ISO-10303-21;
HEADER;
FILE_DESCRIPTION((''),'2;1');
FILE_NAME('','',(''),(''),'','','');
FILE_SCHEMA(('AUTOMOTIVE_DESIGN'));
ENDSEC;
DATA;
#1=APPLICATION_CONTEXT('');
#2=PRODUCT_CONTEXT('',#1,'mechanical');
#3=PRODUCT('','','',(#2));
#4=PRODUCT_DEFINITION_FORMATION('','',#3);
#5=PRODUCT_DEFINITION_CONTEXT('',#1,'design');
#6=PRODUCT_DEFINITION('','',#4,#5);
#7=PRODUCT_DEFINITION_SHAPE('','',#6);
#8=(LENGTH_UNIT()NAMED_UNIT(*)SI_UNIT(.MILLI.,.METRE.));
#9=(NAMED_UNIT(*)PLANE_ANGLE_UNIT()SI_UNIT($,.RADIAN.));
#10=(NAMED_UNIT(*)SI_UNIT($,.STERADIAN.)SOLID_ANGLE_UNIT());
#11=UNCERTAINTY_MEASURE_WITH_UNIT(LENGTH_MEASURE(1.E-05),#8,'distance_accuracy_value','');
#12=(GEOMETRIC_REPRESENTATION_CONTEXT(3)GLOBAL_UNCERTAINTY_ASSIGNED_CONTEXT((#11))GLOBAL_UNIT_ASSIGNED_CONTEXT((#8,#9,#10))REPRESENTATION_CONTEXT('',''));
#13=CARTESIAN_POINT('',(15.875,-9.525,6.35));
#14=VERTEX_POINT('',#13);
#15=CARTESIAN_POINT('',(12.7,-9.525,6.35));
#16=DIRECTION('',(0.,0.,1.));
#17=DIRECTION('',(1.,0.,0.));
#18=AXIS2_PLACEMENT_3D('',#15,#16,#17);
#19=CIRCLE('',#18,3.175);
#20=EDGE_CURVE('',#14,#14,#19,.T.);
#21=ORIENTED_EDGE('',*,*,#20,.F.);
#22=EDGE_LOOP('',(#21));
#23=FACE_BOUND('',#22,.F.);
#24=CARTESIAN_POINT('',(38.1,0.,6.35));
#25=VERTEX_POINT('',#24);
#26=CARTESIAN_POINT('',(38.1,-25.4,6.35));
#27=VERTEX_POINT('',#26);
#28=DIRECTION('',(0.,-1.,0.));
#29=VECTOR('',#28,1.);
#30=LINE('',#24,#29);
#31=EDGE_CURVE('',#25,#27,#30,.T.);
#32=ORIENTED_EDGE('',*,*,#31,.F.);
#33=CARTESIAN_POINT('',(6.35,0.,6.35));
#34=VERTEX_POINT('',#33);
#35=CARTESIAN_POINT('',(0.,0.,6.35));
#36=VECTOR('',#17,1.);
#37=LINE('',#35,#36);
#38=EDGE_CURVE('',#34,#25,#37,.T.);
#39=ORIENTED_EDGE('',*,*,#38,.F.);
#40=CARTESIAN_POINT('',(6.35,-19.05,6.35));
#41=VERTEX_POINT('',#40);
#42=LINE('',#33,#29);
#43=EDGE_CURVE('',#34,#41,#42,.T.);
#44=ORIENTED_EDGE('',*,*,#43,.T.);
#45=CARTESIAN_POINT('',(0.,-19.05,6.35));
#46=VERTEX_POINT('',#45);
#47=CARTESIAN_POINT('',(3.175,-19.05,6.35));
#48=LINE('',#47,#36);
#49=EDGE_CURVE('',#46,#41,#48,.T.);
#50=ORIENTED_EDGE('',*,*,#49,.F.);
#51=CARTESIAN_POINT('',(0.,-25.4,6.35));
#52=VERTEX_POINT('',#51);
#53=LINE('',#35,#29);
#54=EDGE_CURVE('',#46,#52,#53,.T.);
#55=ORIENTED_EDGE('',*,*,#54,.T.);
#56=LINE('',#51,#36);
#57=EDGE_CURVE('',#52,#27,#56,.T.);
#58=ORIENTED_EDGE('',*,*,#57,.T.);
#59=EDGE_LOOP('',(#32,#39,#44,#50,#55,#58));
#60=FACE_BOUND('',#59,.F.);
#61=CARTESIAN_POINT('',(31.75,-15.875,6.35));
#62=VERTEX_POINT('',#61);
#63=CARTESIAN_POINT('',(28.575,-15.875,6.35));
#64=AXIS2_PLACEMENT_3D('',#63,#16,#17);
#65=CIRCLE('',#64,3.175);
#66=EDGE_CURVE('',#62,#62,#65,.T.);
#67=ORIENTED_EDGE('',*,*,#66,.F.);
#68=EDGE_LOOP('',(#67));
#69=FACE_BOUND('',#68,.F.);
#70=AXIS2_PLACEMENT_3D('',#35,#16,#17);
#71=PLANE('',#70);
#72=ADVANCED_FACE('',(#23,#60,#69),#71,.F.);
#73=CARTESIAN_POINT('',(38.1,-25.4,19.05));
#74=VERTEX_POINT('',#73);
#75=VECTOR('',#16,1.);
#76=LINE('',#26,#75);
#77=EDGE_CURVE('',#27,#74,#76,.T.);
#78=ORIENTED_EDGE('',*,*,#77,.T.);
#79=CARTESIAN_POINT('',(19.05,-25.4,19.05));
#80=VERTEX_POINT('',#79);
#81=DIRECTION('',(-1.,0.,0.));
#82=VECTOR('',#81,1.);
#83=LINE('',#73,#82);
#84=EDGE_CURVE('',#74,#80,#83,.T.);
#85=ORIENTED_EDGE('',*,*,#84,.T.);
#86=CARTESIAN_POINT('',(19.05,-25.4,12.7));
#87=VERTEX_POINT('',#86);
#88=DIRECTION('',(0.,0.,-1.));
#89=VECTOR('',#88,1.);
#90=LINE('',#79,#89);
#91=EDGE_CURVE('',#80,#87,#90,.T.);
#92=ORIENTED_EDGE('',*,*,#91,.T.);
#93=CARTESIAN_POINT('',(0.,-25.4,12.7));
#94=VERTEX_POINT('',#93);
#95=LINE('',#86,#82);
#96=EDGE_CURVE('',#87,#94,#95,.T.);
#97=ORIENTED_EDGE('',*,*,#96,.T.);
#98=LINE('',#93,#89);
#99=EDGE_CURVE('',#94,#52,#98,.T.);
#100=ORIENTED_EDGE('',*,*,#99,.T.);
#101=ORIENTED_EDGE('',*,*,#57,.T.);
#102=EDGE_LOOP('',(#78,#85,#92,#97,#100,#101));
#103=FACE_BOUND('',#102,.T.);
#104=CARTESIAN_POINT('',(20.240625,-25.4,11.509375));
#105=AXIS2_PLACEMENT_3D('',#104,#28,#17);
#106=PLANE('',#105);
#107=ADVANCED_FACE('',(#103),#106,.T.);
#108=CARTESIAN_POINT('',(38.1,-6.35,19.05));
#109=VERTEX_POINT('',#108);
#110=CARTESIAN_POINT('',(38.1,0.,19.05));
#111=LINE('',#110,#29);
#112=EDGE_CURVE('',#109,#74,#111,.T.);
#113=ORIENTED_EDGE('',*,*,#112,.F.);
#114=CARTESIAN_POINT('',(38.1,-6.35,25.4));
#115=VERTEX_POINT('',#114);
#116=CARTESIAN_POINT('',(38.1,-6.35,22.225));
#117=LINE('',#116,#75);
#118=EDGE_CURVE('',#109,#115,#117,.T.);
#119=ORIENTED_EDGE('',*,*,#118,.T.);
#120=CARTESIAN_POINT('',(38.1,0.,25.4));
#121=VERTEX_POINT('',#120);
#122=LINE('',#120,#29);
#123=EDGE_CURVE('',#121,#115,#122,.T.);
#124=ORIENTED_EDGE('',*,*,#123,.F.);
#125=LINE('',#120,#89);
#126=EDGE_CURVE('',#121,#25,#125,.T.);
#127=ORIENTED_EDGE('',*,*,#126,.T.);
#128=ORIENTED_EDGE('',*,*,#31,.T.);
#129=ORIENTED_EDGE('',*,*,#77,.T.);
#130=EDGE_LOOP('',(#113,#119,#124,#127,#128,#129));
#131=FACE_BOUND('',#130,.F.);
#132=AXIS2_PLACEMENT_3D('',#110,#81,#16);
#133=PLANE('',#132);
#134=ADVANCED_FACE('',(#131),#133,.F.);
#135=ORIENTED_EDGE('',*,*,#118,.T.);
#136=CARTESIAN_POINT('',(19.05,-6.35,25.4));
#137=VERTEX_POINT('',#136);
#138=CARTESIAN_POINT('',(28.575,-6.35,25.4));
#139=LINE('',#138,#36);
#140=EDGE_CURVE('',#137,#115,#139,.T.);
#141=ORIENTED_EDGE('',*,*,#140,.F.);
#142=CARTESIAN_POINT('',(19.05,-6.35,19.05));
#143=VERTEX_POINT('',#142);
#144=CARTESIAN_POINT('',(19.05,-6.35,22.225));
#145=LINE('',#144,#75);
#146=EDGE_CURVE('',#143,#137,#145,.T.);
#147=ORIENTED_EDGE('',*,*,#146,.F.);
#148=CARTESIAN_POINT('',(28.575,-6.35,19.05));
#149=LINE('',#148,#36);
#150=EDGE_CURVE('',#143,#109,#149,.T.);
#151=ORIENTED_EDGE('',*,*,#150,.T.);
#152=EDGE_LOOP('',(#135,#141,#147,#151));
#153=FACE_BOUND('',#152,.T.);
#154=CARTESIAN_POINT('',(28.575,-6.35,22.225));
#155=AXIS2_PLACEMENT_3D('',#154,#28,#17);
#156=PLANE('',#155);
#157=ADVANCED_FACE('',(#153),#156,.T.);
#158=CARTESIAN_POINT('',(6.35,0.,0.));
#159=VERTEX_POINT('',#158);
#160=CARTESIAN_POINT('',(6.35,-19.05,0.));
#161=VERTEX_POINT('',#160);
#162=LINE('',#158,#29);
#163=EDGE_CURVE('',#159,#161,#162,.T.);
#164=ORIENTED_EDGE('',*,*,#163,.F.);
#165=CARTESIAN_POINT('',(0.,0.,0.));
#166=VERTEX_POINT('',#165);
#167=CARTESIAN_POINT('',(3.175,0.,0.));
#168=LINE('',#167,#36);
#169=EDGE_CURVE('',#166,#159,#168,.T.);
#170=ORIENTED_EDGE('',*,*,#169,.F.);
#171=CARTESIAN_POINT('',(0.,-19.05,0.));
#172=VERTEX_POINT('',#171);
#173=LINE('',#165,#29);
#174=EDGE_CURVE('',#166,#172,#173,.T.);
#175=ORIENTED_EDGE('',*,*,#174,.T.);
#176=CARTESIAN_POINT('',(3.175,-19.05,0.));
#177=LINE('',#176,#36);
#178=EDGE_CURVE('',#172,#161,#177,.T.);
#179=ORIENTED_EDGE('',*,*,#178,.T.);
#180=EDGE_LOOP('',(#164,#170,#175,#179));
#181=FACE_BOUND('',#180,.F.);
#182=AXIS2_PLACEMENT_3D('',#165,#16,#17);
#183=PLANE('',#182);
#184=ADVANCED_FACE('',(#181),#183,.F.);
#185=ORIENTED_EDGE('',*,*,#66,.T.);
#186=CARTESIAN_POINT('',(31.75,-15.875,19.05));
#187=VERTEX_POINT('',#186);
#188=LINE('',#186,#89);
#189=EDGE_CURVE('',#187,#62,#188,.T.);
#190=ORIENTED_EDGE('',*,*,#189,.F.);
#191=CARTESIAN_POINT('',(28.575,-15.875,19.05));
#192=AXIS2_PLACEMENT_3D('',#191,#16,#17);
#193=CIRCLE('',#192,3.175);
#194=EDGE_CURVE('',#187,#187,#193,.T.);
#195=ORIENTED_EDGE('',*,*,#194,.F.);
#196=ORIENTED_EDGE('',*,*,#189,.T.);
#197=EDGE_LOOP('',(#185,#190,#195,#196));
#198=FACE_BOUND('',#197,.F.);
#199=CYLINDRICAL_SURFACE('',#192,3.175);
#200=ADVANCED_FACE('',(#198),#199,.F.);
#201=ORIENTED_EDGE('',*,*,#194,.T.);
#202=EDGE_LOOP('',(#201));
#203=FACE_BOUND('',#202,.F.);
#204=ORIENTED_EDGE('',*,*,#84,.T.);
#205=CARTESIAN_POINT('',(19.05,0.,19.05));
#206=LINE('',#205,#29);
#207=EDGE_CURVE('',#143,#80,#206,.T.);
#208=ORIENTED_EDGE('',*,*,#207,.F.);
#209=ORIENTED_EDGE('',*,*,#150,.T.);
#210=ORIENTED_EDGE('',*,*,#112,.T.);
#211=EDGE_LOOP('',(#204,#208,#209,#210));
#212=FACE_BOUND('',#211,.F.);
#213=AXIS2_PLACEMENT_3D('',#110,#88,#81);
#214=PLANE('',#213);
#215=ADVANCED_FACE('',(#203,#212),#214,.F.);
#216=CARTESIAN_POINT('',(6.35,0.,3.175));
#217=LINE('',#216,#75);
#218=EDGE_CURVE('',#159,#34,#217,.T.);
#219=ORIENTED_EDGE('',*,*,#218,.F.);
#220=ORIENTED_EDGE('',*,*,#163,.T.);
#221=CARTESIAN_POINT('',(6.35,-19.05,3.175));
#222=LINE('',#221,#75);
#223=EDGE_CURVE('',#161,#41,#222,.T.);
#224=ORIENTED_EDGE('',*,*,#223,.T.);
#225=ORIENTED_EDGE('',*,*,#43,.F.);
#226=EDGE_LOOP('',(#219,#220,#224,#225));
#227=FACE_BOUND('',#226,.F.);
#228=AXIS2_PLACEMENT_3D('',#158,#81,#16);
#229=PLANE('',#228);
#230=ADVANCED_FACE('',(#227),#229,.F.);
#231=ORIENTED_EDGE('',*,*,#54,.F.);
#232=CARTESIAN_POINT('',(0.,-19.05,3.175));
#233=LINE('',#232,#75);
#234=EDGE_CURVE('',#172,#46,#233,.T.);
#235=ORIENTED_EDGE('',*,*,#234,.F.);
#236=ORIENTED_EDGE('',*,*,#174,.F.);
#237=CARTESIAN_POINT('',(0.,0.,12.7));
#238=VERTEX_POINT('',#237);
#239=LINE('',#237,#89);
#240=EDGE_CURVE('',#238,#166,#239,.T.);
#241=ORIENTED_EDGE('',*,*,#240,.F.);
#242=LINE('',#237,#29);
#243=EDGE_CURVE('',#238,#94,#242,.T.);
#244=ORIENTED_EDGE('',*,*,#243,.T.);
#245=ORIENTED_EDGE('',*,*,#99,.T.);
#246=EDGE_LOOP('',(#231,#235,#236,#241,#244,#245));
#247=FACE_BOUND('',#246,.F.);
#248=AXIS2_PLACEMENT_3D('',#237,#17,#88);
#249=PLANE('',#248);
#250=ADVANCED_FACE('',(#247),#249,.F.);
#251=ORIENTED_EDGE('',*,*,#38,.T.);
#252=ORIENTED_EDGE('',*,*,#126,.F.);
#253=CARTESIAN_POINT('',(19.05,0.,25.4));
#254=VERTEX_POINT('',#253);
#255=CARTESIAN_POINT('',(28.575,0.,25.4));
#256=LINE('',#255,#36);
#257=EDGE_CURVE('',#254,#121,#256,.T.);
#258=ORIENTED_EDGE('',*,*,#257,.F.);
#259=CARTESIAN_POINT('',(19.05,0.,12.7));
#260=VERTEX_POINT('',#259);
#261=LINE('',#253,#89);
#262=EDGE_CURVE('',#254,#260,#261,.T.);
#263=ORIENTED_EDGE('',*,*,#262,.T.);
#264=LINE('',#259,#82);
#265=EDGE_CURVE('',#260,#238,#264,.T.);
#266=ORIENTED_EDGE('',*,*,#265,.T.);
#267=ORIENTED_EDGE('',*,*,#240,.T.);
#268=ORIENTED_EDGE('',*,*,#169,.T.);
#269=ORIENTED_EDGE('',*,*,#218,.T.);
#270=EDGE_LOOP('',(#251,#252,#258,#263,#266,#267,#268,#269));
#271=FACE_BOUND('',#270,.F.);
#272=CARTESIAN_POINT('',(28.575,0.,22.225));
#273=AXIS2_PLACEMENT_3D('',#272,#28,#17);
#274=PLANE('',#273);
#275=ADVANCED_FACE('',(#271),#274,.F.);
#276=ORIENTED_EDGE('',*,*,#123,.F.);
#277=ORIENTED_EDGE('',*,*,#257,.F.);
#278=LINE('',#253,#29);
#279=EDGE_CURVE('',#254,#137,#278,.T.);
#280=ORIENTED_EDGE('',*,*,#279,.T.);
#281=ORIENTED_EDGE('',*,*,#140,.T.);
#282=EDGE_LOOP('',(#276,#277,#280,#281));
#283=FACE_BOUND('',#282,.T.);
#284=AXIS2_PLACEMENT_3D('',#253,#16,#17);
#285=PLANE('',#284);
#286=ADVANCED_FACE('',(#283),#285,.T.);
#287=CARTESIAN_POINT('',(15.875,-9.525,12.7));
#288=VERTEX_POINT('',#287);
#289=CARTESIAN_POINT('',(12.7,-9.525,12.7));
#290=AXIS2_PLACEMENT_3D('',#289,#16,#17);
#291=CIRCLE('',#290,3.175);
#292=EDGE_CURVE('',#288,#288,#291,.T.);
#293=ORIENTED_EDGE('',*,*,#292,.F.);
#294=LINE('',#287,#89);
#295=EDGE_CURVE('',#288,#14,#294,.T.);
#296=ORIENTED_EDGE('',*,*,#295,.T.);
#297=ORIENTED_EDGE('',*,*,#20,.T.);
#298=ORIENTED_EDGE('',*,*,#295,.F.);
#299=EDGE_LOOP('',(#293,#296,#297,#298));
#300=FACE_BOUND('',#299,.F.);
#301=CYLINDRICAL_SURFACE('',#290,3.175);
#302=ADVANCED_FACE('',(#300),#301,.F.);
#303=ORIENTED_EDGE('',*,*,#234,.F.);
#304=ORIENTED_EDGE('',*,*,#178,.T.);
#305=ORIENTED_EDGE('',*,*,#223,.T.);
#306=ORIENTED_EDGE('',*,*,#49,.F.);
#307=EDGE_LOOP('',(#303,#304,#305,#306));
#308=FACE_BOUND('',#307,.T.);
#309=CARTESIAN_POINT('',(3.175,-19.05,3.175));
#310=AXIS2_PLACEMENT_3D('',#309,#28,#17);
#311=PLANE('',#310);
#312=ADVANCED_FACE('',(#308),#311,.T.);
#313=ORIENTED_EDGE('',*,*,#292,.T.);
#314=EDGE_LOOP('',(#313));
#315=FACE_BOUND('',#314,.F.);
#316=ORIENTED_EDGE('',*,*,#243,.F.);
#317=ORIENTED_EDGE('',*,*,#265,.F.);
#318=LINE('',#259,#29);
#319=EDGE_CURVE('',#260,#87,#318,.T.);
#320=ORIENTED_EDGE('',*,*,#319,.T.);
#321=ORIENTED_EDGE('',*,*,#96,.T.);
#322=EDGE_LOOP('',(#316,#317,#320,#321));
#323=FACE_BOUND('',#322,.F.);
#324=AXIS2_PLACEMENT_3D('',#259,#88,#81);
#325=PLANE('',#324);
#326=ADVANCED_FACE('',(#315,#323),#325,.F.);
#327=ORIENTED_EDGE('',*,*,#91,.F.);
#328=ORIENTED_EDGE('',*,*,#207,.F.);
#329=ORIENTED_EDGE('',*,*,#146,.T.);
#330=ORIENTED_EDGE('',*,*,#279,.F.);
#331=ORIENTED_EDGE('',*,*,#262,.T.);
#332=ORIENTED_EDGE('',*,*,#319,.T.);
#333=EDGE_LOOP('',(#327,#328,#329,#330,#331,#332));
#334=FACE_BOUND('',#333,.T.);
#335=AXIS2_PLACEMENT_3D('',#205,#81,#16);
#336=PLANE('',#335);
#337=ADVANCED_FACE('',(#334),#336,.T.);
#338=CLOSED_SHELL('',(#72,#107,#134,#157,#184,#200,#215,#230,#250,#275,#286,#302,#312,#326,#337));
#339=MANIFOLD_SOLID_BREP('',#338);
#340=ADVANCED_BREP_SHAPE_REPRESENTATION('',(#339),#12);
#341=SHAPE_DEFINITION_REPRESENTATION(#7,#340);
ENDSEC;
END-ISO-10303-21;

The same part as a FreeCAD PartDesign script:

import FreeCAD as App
import Part
import Sketcher

V = App.Vector
Q = App.Units.Quantity

doc = App.newDocument("Part")
params = doc.addObject("Spreadsheet::Sheet", "Params")
for row, (alias, value) in enumerate([
    ("sketch1_width", "0.25 in"),
    ("pad1_length", "0.75 in"),
    ("sketch2_width", "1.5 in"),
    ("sketch2_height", "0.5 in"),
    ("pad2_length", "1 in"),
    ("sketch3_width", "0.75 in"),
    ("sketch3_height", "0.25 in"),
    ("pad3_length", "0.25 in"),
    ("sketch4_diameter", "0.25 in"),
    ("pocket1_length", "1 in"),
    ("sketch5_diameter", "0.25 in"),
    ("pocket2_length", "1 in"),
], start=1):
    params.set(f"A{row}", alias)
    params.set(f"B{row}", "=" + value)
    params.setAlias(f"B{row}", alias)

body = doc.addObject("PartDesign::Body", "Body")

# Sketch on XZ plane
sketch1 = body.newObject("Sketcher::SketchObject", "Sketch")
sketch1.AttachmentSupport = (doc.getObject("XZ_Plane"), [""])
sketch1.MapMode = "FlatFace"
sketch1.addGeometry([
    Part.LineSegment(V(0, 6, 0), V(0, 0, 0)),
    Part.LineSegment(V(0, 0, 0), V(6, 0, 0)),
    Part.LineSegment(V(6, 0, 0), V(6, 6, 0)),
    Part.LineSegment(V(6, 6, 0), V(0, 6, 0)),
], False)
sketch1.addConstraint([
    Sketcher.Constraint("Coincident", 0, 2, 1, 1),
    Sketcher.Constraint("Coincident", 1, 2, 2, 1),
    Sketcher.Constraint("Coincident", 2, 2, 3, 1),
    Sketcher.Constraint("Coincident", 3, 2, 0, 1),
    Sketcher.Constraint("Vertical", 0),
    Sketcher.Constraint("Horizontal", 1),
    Sketcher.Constraint("Vertical", 2),
    Sketcher.Constraint("Horizontal", 3),
    Sketcher.Constraint("Coincident", 0, 2, -1, 1),
    Sketcher.Constraint("Equal", 3, 0),
    Sketcher.Constraint("DistanceX", 1, 1, 1, 2, Q("0.25 in")),
])
sketch1.setExpression("Constraints[10]", "Params.sketch1_width")
pad1 = body.newObject("PartDesign::Pad", "Pad")
pad1.Profile = sketch1
pad1.setExpression("Length", "Params.pad1_length")

# Sketch on XZ plane
sketch2 = body.newObject("Sketcher::SketchObject", "Sketch001")
sketch2.AttachmentSupport = (doc.getObject("XZ_Plane"), [""])
sketch2.MapMode = "FlatFace"
sketch2.addGeometry([
    Part.LineSegment(V(0, 13, 0), V(0, 6, 0)),  # 0
    Part.LineSegment(V(0, 6, 0), V(38, 6, 0)),  # 1
    Part.LineSegment(V(38, 6, 0), V(38, 19, 0)),  # 2
    Part.LineSegment(V(38, 19, 0), V(19, 19, 0)),  # 3
    Part.LineSegment(V(19, 19, 0), V(19, 13, 0)),  # 4
    Part.LineSegment(V(19, 13, 0), V(0, 13, 0)),  # 5
], False)
sketch2.addConstraint([
    Sketcher.Constraint("Coincident", 0, 2, 1, 1),
    Sketcher.Constraint("Coincident", 1, 2, 2, 1),
    Sketcher.Constraint("Coincident", 2, 2, 3, 1),
    Sketcher.Constraint("Coincident", 3, 2, 4, 1),
    Sketcher.Constraint("Coincident", 4, 2, 5, 1),
    Sketcher.Constraint("Coincident", 5, 2, 0, 1),
    Sketcher.Constraint("Vertical", 0),
    Sketcher.Constraint("Horizontal", 1),
    Sketcher.Constraint("Vertical", 2),
    Sketcher.Constraint("Horizontal", 3),
    Sketcher.Constraint("Vertical", 4),
    Sketcher.Constraint("Horizontal", 5),
    Sketcher.Constraint("PointOnObject", 0, 2, -2),
    Sketcher.Constraint("Equal", 3, 5),
    Sketcher.Constraint("Equal", 0, 4),
    Sketcher.Constraint("DistanceX", 1, 1, 1, 2, Q("1.5 in")),
    Sketcher.Constraint("DistanceY", 2, 1, 2, 2, Q("0.5 in")),
    Sketcher.Constraint("DistanceY", -1, 1, 4, 2, Q("0.5 in")),
])
sketch2.setExpression("Constraints[15]", "Params.sketch2_width")
sketch2.setExpression("Constraints[16]", "Params.sketch2_height")
pad2 = body.newObject("PartDesign::Pad", "Pad001")
pad2.Profile = sketch2
pad2.setExpression("Length", "Params.pad2_length")

# Sketch on XZ plane
sketch3 = body.newObject("Sketcher::SketchObject", "Sketch002")
sketch3.AttachmentSupport = (doc.getObject("XZ_Plane"), [""])
sketch3.MapMode = "FlatFace"
sketch3.addGeometry([
    Part.LineSegment(V(19, 25, 0), V(19, 19, 0)),
    Part.LineSegment(V(19, 19, 0), V(38, 19, 0)),
    Part.LineSegment(V(38, 19, 0), V(38, 25, 0)),
    Part.LineSegment(V(38, 25, 0), V(19, 25, 0)),
], False)
sketch3.addConstraint([
    Sketcher.Constraint("Coincident", 0, 2, 1, 1),
    Sketcher.Constraint("Coincident", 1, 2, 2, 1),
    Sketcher.Constraint("Coincident", 2, 2, 3, 1),
    Sketcher.Constraint("Coincident", 3, 2, 0, 1),
    Sketcher.Constraint("Vertical", 0),
    Sketcher.Constraint("Horizontal", 1),
    Sketcher.Constraint("Vertical", 2),
    Sketcher.Constraint("Horizontal", 3),
    Sketcher.Constraint("DistanceY", -1, 1, 2, 2, Q("1 in")),
    Sketcher.Constraint("DistanceX", 1, 1, 1, 2, Q("0.75 in")),
    Sketcher.Constraint("DistanceY", 0, 2, 0, 1, Q("0.25 in")),
    Sketcher.Constraint("DistanceX", -1, 1, 1, 2, Q("1.5 in")),
])
sketch3.setExpression("Constraints[9]", "Params.sketch3_width")
sketch3.setExpression("Constraints[10]", "Params.sketch3_height")
pad3 = body.newObject("PartDesign::Pad", "Pad002")
pad3.Profile = sketch3
pad3.setExpression("Length", "Params.pad3_length")

# Sketch on XY plane
sketch4 = body.newObject("Sketcher::SketchObject", "Sketch003")
sketch4.AttachmentSupport = (doc.getObject("XY_Plane"), [""])
sketch4.MapMode = "FlatFace"
sketch4.AttachmentOffset = App.Placement(V(0, 0, 0.5 * 25.4), App.Rotation())
sketch4.addGeometry(Part.Circle(V(12.7, -9.5, 0), V(0, 0, 1), 3.2), False)
sketch4.addConstraint([
    Sketcher.Constraint("Diameter", 0, Q("0.25 in")),
    Sketcher.Constraint("DistanceX", -1, 1, 0, 3, Q("0.5 in")),
    Sketcher.Constraint("DistanceY", 0, 3, -1, 1, Q("0.375 in")),
])
sketch4.setExpression("Constraints[0]", "Params.sketch4_diameter")
pocket1 = body.newObject("PartDesign::Pocket", "Pocket")
pocket1.Profile = sketch4
pocket1.setExpression("Length", "Params.pocket1_length")

# Sketch on XY plane
sketch5 = body.newObject("Sketcher::SketchObject", "Sketch004")
sketch5.AttachmentSupport = (doc.getObject("XY_Plane"), [""])
sketch5.MapMode = "FlatFace"
sketch5.AttachmentOffset = App.Placement(V(0, 0, 0.75 * 25.4), App.Rotation())
sketch5.addGeometry(Part.Circle(V(28.6, -15.9, 0), V(0, 0, 1), 3.2), False)
sketch5.addConstraint([
    Sketcher.Constraint("Diameter", 0, Q("0.25 in")),
    Sketcher.Constraint("DistanceX", -1, 1, 0, 3, Q("1.125 in")),
    Sketcher.Constraint("DistanceY", 0, 3, -1, 1, Q("0.625 in")),
])
sketch5.setExpression("Constraints[0]", "Params.sketch5_diameter")
pocket2 = body.newObject("PartDesign::Pocket", "Pocket001")
pocket2.Profile = sketch5
pocket2.setExpression("Length", "Params.pocket2_length")

doc.recompute()
